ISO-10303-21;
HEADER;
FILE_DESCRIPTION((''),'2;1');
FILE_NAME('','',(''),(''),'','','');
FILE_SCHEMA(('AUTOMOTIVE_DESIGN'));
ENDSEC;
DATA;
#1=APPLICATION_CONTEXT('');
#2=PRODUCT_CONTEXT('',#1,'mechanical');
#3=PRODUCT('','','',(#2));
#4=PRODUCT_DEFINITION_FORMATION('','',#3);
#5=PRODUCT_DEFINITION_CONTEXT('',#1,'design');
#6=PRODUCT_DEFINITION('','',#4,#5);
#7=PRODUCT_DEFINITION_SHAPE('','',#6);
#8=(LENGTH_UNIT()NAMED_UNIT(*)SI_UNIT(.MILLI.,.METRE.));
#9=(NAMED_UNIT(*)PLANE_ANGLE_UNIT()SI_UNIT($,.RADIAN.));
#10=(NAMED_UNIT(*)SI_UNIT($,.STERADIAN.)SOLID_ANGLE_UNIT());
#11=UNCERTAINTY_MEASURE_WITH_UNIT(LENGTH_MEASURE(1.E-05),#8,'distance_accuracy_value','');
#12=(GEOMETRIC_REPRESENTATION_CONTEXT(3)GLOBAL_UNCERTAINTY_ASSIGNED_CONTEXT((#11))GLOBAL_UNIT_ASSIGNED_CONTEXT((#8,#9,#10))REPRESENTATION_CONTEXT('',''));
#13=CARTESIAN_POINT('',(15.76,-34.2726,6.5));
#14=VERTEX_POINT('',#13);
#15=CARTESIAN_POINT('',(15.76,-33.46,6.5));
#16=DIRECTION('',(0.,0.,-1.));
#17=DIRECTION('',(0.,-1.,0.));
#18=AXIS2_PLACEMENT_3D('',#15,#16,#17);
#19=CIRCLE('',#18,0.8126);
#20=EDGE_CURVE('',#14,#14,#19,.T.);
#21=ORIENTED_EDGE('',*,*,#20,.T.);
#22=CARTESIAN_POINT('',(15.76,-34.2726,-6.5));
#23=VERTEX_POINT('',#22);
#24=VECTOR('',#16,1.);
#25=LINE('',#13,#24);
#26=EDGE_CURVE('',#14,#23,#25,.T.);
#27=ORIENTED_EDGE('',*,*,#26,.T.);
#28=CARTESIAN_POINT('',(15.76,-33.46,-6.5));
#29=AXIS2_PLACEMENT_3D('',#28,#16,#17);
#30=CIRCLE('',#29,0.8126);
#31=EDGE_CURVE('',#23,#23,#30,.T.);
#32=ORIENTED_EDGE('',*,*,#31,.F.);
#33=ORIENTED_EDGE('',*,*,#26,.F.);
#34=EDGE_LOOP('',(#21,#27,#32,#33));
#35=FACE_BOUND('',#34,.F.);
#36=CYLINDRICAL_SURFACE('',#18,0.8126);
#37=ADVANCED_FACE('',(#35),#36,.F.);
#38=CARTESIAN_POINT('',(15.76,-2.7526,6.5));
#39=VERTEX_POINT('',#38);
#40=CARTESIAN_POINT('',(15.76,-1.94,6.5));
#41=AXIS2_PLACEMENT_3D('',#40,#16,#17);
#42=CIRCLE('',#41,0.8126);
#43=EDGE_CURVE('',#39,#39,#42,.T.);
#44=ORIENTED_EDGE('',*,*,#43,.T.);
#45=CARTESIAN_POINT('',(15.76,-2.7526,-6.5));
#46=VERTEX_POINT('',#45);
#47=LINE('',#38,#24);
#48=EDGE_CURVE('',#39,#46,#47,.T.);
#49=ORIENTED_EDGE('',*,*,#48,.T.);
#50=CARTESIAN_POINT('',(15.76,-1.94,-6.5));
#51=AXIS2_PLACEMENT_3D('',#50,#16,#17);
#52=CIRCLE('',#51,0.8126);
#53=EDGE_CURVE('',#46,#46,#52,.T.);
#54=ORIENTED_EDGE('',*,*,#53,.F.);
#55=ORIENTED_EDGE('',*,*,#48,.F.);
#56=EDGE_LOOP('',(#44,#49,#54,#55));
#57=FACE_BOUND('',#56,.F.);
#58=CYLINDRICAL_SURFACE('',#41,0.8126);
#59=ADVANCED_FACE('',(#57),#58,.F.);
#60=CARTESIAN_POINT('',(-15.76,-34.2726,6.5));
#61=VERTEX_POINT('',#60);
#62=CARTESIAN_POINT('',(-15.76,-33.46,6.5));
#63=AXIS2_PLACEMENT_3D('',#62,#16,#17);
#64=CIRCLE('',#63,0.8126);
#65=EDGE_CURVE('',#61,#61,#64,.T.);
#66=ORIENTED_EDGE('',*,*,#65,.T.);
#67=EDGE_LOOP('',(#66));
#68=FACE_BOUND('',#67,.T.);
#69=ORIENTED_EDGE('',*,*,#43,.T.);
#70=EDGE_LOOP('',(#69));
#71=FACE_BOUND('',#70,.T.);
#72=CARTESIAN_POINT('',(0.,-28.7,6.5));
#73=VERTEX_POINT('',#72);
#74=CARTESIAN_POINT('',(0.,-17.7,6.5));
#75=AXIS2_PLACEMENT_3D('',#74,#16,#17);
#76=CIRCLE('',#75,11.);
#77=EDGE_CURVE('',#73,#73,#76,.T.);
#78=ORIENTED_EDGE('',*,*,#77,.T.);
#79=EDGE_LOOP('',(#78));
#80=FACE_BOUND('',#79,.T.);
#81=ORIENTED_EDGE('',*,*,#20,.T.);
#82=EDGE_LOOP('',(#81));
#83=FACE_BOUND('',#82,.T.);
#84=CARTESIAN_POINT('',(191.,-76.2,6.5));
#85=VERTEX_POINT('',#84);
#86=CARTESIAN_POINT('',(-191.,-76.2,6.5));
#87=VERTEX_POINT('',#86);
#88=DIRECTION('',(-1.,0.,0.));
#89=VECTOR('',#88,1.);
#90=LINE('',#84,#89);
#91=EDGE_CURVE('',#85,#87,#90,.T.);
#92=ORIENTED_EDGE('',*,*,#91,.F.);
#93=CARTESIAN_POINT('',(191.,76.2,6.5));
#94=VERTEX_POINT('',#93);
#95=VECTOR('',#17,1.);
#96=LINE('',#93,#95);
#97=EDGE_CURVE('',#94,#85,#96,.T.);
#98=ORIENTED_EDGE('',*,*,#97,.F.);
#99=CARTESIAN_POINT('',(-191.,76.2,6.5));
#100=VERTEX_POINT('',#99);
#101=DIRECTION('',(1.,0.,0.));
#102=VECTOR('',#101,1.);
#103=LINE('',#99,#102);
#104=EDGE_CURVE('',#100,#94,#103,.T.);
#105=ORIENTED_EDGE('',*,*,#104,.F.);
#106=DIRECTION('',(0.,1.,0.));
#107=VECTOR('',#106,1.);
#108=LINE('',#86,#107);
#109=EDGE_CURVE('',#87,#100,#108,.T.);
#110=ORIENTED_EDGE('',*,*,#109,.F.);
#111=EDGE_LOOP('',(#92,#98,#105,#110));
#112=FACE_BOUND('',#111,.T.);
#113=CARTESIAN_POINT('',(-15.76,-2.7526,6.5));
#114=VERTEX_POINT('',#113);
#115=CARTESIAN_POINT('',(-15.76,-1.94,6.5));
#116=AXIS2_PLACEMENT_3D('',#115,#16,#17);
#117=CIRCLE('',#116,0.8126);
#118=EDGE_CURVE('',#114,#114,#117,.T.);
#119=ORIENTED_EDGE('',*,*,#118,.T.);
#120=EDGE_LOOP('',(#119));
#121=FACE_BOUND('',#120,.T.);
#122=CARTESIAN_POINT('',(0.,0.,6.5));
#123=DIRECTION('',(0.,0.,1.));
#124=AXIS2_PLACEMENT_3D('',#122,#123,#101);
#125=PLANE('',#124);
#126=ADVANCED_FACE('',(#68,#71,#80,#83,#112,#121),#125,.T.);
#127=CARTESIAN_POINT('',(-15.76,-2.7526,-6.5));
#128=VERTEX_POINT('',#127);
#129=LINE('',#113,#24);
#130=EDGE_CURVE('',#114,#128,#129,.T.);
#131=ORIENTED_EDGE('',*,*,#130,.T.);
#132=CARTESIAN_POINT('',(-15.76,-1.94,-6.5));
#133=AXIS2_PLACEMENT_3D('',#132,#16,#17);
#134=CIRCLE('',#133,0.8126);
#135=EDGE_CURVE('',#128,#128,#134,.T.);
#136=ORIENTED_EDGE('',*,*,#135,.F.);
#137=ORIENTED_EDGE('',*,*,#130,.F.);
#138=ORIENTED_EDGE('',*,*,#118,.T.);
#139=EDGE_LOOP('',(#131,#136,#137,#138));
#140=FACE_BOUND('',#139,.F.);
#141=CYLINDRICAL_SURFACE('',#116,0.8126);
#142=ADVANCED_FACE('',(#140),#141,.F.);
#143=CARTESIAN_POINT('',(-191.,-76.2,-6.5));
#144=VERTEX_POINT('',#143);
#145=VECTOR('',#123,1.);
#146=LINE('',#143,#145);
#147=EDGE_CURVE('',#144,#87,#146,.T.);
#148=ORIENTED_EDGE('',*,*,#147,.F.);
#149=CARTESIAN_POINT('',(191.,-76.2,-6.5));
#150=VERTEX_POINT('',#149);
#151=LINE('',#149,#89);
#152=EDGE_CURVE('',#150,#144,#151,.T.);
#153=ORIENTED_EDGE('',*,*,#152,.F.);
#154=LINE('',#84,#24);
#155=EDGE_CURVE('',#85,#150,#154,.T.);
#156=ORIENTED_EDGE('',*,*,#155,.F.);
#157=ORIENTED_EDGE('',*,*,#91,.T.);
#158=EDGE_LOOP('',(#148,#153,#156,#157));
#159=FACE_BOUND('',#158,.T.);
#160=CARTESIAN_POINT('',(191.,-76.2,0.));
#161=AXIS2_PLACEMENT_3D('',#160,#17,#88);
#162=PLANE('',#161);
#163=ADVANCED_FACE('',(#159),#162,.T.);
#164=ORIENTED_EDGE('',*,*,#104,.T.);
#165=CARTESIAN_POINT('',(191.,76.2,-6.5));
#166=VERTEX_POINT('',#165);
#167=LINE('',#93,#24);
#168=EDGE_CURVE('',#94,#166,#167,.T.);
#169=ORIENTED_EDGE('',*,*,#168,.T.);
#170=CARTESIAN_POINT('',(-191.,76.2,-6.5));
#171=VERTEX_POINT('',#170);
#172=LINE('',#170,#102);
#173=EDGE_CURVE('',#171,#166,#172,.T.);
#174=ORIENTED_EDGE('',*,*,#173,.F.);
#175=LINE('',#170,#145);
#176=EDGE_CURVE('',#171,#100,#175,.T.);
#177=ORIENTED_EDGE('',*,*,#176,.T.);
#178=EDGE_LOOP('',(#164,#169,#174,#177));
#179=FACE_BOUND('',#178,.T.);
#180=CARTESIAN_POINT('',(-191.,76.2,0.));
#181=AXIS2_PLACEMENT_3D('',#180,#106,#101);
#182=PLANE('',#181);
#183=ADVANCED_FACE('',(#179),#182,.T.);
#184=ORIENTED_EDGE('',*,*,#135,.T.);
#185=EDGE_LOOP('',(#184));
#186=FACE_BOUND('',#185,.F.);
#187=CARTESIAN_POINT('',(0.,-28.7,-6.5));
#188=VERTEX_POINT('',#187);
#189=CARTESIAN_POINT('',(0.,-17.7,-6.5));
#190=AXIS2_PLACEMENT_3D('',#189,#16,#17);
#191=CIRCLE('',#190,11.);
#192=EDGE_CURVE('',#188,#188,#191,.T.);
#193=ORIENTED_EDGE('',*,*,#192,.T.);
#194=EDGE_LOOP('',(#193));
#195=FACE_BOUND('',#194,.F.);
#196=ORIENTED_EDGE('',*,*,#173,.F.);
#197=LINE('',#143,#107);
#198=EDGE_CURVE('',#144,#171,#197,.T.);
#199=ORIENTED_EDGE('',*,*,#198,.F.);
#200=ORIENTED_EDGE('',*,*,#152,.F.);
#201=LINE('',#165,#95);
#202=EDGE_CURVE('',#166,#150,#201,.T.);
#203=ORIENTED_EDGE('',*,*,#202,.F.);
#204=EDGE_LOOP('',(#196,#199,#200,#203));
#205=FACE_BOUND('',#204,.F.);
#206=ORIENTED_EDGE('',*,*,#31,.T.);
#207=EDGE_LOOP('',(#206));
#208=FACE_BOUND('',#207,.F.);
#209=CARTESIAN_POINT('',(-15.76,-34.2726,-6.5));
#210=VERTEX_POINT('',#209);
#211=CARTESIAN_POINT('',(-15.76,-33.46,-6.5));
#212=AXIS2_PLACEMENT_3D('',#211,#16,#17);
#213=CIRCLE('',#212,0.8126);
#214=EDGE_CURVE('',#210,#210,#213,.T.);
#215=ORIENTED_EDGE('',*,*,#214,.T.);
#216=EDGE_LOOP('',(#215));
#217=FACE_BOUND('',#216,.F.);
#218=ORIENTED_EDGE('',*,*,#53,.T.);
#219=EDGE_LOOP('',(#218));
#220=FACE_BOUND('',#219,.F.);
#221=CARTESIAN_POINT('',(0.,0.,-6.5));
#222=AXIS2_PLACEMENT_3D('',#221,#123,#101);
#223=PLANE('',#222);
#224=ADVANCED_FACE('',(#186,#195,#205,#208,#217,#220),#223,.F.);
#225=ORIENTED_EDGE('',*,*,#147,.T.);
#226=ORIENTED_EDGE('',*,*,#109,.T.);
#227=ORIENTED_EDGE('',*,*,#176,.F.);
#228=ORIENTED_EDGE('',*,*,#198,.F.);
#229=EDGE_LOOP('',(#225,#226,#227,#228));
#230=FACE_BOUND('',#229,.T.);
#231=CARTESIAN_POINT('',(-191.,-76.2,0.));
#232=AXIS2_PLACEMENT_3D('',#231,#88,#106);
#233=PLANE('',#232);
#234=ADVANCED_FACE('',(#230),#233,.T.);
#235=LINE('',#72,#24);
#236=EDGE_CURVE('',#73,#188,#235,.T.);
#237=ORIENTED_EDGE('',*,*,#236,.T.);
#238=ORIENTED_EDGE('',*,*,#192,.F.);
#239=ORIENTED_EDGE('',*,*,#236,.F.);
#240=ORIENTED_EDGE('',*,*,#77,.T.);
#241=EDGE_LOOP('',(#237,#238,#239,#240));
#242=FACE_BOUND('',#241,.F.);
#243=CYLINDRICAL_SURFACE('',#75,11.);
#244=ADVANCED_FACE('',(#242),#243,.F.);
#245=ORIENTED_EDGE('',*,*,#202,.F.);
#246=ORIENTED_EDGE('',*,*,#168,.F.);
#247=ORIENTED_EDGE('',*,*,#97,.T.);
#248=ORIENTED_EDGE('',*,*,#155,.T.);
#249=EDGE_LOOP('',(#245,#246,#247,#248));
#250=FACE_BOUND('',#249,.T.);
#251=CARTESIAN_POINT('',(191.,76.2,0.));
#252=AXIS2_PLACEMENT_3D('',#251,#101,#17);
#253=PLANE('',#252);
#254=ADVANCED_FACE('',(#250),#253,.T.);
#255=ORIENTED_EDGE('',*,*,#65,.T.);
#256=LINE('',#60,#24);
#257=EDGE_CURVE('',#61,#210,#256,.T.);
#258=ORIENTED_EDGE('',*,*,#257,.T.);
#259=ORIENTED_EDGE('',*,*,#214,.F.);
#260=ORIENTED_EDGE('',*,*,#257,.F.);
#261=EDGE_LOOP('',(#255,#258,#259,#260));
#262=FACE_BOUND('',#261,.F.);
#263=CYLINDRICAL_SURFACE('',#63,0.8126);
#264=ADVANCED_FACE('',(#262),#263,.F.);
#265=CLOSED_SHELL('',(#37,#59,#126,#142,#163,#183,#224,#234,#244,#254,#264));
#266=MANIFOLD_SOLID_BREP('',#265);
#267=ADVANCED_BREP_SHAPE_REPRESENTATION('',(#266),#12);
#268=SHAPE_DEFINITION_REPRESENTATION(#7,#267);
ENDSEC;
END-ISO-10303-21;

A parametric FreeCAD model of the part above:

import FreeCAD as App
import Part
import Sketcher
Q = App.Units.Quantity


def add_polygon(sketch, points):
    """Adds a closed chain of lines whose ends are joined by coincident constraints."""
    first, n = sketch.GeometryCount, len(points)
    for a, b in zip(points, points[1:] + points[:1]):
        sketch.addGeometry(Part.LineSegment(App.Vector(*a, 0), App.Vector(*b, 0)), False)
    for i in range(n):
        sketch.addConstraint(Sketcher.Constraint("Coincident", first + i, 2, first + (i + 1) % n, 1))

doc = App.newDocument("Part")
body = doc.addObject("PartDesign::Body", "Body")

# Sketch on XY plane
sketch1 = body.newObject("Sketcher::SketchObject", "Sketch")
sketch1.AttachmentSupport = (doc.getObject("XY_Plane"), [""])
sketch1.MapMode = "FlatFace"
add_polygon(sketch1, [(191, 76), (-191, 76), (-191, -76), (191, -76)])  # lines 0-3
sketch1.addConstraint(Sketcher.Constraint("Horizontal", 0))
sketch1.addConstraint(Sketcher.Constraint("Vertical", 1))
sketch1.addConstraint(Sketcher.Constraint("Horizontal", 2))
sketch1.addConstraint(Sketcher.Constraint("Vertical", 3))
sketch1.addConstraint(Sketcher.Constraint("Symmetric", 0, 2, 2, 2, -1, 1))
sketch1.addConstraint(Sketcher.Constraint("DistanceX", 0, 2, 0, 1, Q("382 mm")))
sketch1.addConstraint(Sketcher.Constraint("DistanceY", 1, 2, 1, 1, Q("152.4 mm")))
pad1 = body.newObject("PartDesign::Pad", "Pad")
pad1.Profile = sketch1
pad1.Length = 13
pad1.Midplane = True

# Sketch on XY plane
sketch2 = body.newObject("Sketcher::SketchObject", "Sketch001")
sketch2.AttachmentSupport = (doc.getObject("XY_Plane"), [""])
sketch2.MapMode = "FlatFace"
sketch2.AttachmentOffset = App.Placement(App.Vector(0, 0, 6.5), App.Rotation())
sketch2.addGeometry(Part.Circle(App.Vector(15.8, -1.9, 0), App.Vector(0, 0, 1), 0.8), False)
sketch2.addGeometry(Part.Circle(App.Vector(-15.8, -1.9, 0), App.Vector(0, 0, 1), 0.8), False)
sketch2.addGeometry(Part.Circle(App.Vector(-15.8, -33.5, 0), App.Vector(0, 0, 1), 0.8), False)
sketch2.addGeometry(Part.Circle(App.Vector(15.8, -33.5, 0), App.Vector(0, 0, 1), 0.8), False)
sketch2.addConstraint(Sketcher.Constraint("Equal", 0, 1))
sketch2.addConstraint(Sketcher.Constraint("Equal", 1, 2))
sketch2.addConstraint(Sketcher.Constraint("Equal", 2, 3))
sketch2.addConstraint(Sketcher.Constraint("Symmetric", 0, 3, 1, 3, -2))
sketch2.addConstraint(Sketcher.Constraint("Symmetric", 2, 3, 3, 3, -2))
sketch2.addConstraint(Sketcher.Constraint("Vertical", 1, 3, 2, 3))
sketch2.addConstraint(Sketcher.Constraint("Diameter", 0, Q("1.6252 mm")))
sketch2.addConstraint(Sketcher.Constraint("DistanceX", -1, 1, 0, 3, Q("15.76 mm")))
sketch2.addConstraint(Sketcher.Constraint("DistanceY", 0, 3, -1, 1, Q("1.94 mm")))
sketch2.addConstraint(Sketcher.Constraint("DistanceY", 2, 3, -1, 1, Q("33.46 mm")))
doc.recompute()
hole = body.newObject("PartDesign::Hole", "Hole")
hole.Profile = sketch2
hole.ThreadType = "None"
hole.Diameter = 1.6252
hole.DepthType = "ThroughAll"

# Sketch on XY plane
sketch3 = body.newObject("Sketcher::SketchObject", "Sketch002")
sketch3.AttachmentSupport = (doc.getObject("XY_Plane"), [""])
sketch3.MapMode = "FlatFace"
sketch3.AttachmentOffset = App.Placement(App.Vector(0, 0, 6.5), App.Rotation())
sketch3.addGeometry(Part.Circle(App.Vector(0, -18, 0), App.Vector(0, 0, 1), 11), False)
sketch3.addConstraint(Sketcher.Constraint("PointOnObject", 0, 3, -2))
sketch3.addConstraint(Sketcher.Constraint("Diameter", 0, Q("22 mm")))
sketch3.addConstraint(Sketcher.Constraint("DistanceY", 0, 3, -1, 1, Q("17.7 mm")))
doc.recompute()
hole2 = body.newObject("PartDesign::Hole", "Hole001")
hole2.Profile = sketch3
hole2.ThreadType = "None"
hole2.Diameter = 22
hole2.DepthType = "ThroughAll"

doc.recompute()
